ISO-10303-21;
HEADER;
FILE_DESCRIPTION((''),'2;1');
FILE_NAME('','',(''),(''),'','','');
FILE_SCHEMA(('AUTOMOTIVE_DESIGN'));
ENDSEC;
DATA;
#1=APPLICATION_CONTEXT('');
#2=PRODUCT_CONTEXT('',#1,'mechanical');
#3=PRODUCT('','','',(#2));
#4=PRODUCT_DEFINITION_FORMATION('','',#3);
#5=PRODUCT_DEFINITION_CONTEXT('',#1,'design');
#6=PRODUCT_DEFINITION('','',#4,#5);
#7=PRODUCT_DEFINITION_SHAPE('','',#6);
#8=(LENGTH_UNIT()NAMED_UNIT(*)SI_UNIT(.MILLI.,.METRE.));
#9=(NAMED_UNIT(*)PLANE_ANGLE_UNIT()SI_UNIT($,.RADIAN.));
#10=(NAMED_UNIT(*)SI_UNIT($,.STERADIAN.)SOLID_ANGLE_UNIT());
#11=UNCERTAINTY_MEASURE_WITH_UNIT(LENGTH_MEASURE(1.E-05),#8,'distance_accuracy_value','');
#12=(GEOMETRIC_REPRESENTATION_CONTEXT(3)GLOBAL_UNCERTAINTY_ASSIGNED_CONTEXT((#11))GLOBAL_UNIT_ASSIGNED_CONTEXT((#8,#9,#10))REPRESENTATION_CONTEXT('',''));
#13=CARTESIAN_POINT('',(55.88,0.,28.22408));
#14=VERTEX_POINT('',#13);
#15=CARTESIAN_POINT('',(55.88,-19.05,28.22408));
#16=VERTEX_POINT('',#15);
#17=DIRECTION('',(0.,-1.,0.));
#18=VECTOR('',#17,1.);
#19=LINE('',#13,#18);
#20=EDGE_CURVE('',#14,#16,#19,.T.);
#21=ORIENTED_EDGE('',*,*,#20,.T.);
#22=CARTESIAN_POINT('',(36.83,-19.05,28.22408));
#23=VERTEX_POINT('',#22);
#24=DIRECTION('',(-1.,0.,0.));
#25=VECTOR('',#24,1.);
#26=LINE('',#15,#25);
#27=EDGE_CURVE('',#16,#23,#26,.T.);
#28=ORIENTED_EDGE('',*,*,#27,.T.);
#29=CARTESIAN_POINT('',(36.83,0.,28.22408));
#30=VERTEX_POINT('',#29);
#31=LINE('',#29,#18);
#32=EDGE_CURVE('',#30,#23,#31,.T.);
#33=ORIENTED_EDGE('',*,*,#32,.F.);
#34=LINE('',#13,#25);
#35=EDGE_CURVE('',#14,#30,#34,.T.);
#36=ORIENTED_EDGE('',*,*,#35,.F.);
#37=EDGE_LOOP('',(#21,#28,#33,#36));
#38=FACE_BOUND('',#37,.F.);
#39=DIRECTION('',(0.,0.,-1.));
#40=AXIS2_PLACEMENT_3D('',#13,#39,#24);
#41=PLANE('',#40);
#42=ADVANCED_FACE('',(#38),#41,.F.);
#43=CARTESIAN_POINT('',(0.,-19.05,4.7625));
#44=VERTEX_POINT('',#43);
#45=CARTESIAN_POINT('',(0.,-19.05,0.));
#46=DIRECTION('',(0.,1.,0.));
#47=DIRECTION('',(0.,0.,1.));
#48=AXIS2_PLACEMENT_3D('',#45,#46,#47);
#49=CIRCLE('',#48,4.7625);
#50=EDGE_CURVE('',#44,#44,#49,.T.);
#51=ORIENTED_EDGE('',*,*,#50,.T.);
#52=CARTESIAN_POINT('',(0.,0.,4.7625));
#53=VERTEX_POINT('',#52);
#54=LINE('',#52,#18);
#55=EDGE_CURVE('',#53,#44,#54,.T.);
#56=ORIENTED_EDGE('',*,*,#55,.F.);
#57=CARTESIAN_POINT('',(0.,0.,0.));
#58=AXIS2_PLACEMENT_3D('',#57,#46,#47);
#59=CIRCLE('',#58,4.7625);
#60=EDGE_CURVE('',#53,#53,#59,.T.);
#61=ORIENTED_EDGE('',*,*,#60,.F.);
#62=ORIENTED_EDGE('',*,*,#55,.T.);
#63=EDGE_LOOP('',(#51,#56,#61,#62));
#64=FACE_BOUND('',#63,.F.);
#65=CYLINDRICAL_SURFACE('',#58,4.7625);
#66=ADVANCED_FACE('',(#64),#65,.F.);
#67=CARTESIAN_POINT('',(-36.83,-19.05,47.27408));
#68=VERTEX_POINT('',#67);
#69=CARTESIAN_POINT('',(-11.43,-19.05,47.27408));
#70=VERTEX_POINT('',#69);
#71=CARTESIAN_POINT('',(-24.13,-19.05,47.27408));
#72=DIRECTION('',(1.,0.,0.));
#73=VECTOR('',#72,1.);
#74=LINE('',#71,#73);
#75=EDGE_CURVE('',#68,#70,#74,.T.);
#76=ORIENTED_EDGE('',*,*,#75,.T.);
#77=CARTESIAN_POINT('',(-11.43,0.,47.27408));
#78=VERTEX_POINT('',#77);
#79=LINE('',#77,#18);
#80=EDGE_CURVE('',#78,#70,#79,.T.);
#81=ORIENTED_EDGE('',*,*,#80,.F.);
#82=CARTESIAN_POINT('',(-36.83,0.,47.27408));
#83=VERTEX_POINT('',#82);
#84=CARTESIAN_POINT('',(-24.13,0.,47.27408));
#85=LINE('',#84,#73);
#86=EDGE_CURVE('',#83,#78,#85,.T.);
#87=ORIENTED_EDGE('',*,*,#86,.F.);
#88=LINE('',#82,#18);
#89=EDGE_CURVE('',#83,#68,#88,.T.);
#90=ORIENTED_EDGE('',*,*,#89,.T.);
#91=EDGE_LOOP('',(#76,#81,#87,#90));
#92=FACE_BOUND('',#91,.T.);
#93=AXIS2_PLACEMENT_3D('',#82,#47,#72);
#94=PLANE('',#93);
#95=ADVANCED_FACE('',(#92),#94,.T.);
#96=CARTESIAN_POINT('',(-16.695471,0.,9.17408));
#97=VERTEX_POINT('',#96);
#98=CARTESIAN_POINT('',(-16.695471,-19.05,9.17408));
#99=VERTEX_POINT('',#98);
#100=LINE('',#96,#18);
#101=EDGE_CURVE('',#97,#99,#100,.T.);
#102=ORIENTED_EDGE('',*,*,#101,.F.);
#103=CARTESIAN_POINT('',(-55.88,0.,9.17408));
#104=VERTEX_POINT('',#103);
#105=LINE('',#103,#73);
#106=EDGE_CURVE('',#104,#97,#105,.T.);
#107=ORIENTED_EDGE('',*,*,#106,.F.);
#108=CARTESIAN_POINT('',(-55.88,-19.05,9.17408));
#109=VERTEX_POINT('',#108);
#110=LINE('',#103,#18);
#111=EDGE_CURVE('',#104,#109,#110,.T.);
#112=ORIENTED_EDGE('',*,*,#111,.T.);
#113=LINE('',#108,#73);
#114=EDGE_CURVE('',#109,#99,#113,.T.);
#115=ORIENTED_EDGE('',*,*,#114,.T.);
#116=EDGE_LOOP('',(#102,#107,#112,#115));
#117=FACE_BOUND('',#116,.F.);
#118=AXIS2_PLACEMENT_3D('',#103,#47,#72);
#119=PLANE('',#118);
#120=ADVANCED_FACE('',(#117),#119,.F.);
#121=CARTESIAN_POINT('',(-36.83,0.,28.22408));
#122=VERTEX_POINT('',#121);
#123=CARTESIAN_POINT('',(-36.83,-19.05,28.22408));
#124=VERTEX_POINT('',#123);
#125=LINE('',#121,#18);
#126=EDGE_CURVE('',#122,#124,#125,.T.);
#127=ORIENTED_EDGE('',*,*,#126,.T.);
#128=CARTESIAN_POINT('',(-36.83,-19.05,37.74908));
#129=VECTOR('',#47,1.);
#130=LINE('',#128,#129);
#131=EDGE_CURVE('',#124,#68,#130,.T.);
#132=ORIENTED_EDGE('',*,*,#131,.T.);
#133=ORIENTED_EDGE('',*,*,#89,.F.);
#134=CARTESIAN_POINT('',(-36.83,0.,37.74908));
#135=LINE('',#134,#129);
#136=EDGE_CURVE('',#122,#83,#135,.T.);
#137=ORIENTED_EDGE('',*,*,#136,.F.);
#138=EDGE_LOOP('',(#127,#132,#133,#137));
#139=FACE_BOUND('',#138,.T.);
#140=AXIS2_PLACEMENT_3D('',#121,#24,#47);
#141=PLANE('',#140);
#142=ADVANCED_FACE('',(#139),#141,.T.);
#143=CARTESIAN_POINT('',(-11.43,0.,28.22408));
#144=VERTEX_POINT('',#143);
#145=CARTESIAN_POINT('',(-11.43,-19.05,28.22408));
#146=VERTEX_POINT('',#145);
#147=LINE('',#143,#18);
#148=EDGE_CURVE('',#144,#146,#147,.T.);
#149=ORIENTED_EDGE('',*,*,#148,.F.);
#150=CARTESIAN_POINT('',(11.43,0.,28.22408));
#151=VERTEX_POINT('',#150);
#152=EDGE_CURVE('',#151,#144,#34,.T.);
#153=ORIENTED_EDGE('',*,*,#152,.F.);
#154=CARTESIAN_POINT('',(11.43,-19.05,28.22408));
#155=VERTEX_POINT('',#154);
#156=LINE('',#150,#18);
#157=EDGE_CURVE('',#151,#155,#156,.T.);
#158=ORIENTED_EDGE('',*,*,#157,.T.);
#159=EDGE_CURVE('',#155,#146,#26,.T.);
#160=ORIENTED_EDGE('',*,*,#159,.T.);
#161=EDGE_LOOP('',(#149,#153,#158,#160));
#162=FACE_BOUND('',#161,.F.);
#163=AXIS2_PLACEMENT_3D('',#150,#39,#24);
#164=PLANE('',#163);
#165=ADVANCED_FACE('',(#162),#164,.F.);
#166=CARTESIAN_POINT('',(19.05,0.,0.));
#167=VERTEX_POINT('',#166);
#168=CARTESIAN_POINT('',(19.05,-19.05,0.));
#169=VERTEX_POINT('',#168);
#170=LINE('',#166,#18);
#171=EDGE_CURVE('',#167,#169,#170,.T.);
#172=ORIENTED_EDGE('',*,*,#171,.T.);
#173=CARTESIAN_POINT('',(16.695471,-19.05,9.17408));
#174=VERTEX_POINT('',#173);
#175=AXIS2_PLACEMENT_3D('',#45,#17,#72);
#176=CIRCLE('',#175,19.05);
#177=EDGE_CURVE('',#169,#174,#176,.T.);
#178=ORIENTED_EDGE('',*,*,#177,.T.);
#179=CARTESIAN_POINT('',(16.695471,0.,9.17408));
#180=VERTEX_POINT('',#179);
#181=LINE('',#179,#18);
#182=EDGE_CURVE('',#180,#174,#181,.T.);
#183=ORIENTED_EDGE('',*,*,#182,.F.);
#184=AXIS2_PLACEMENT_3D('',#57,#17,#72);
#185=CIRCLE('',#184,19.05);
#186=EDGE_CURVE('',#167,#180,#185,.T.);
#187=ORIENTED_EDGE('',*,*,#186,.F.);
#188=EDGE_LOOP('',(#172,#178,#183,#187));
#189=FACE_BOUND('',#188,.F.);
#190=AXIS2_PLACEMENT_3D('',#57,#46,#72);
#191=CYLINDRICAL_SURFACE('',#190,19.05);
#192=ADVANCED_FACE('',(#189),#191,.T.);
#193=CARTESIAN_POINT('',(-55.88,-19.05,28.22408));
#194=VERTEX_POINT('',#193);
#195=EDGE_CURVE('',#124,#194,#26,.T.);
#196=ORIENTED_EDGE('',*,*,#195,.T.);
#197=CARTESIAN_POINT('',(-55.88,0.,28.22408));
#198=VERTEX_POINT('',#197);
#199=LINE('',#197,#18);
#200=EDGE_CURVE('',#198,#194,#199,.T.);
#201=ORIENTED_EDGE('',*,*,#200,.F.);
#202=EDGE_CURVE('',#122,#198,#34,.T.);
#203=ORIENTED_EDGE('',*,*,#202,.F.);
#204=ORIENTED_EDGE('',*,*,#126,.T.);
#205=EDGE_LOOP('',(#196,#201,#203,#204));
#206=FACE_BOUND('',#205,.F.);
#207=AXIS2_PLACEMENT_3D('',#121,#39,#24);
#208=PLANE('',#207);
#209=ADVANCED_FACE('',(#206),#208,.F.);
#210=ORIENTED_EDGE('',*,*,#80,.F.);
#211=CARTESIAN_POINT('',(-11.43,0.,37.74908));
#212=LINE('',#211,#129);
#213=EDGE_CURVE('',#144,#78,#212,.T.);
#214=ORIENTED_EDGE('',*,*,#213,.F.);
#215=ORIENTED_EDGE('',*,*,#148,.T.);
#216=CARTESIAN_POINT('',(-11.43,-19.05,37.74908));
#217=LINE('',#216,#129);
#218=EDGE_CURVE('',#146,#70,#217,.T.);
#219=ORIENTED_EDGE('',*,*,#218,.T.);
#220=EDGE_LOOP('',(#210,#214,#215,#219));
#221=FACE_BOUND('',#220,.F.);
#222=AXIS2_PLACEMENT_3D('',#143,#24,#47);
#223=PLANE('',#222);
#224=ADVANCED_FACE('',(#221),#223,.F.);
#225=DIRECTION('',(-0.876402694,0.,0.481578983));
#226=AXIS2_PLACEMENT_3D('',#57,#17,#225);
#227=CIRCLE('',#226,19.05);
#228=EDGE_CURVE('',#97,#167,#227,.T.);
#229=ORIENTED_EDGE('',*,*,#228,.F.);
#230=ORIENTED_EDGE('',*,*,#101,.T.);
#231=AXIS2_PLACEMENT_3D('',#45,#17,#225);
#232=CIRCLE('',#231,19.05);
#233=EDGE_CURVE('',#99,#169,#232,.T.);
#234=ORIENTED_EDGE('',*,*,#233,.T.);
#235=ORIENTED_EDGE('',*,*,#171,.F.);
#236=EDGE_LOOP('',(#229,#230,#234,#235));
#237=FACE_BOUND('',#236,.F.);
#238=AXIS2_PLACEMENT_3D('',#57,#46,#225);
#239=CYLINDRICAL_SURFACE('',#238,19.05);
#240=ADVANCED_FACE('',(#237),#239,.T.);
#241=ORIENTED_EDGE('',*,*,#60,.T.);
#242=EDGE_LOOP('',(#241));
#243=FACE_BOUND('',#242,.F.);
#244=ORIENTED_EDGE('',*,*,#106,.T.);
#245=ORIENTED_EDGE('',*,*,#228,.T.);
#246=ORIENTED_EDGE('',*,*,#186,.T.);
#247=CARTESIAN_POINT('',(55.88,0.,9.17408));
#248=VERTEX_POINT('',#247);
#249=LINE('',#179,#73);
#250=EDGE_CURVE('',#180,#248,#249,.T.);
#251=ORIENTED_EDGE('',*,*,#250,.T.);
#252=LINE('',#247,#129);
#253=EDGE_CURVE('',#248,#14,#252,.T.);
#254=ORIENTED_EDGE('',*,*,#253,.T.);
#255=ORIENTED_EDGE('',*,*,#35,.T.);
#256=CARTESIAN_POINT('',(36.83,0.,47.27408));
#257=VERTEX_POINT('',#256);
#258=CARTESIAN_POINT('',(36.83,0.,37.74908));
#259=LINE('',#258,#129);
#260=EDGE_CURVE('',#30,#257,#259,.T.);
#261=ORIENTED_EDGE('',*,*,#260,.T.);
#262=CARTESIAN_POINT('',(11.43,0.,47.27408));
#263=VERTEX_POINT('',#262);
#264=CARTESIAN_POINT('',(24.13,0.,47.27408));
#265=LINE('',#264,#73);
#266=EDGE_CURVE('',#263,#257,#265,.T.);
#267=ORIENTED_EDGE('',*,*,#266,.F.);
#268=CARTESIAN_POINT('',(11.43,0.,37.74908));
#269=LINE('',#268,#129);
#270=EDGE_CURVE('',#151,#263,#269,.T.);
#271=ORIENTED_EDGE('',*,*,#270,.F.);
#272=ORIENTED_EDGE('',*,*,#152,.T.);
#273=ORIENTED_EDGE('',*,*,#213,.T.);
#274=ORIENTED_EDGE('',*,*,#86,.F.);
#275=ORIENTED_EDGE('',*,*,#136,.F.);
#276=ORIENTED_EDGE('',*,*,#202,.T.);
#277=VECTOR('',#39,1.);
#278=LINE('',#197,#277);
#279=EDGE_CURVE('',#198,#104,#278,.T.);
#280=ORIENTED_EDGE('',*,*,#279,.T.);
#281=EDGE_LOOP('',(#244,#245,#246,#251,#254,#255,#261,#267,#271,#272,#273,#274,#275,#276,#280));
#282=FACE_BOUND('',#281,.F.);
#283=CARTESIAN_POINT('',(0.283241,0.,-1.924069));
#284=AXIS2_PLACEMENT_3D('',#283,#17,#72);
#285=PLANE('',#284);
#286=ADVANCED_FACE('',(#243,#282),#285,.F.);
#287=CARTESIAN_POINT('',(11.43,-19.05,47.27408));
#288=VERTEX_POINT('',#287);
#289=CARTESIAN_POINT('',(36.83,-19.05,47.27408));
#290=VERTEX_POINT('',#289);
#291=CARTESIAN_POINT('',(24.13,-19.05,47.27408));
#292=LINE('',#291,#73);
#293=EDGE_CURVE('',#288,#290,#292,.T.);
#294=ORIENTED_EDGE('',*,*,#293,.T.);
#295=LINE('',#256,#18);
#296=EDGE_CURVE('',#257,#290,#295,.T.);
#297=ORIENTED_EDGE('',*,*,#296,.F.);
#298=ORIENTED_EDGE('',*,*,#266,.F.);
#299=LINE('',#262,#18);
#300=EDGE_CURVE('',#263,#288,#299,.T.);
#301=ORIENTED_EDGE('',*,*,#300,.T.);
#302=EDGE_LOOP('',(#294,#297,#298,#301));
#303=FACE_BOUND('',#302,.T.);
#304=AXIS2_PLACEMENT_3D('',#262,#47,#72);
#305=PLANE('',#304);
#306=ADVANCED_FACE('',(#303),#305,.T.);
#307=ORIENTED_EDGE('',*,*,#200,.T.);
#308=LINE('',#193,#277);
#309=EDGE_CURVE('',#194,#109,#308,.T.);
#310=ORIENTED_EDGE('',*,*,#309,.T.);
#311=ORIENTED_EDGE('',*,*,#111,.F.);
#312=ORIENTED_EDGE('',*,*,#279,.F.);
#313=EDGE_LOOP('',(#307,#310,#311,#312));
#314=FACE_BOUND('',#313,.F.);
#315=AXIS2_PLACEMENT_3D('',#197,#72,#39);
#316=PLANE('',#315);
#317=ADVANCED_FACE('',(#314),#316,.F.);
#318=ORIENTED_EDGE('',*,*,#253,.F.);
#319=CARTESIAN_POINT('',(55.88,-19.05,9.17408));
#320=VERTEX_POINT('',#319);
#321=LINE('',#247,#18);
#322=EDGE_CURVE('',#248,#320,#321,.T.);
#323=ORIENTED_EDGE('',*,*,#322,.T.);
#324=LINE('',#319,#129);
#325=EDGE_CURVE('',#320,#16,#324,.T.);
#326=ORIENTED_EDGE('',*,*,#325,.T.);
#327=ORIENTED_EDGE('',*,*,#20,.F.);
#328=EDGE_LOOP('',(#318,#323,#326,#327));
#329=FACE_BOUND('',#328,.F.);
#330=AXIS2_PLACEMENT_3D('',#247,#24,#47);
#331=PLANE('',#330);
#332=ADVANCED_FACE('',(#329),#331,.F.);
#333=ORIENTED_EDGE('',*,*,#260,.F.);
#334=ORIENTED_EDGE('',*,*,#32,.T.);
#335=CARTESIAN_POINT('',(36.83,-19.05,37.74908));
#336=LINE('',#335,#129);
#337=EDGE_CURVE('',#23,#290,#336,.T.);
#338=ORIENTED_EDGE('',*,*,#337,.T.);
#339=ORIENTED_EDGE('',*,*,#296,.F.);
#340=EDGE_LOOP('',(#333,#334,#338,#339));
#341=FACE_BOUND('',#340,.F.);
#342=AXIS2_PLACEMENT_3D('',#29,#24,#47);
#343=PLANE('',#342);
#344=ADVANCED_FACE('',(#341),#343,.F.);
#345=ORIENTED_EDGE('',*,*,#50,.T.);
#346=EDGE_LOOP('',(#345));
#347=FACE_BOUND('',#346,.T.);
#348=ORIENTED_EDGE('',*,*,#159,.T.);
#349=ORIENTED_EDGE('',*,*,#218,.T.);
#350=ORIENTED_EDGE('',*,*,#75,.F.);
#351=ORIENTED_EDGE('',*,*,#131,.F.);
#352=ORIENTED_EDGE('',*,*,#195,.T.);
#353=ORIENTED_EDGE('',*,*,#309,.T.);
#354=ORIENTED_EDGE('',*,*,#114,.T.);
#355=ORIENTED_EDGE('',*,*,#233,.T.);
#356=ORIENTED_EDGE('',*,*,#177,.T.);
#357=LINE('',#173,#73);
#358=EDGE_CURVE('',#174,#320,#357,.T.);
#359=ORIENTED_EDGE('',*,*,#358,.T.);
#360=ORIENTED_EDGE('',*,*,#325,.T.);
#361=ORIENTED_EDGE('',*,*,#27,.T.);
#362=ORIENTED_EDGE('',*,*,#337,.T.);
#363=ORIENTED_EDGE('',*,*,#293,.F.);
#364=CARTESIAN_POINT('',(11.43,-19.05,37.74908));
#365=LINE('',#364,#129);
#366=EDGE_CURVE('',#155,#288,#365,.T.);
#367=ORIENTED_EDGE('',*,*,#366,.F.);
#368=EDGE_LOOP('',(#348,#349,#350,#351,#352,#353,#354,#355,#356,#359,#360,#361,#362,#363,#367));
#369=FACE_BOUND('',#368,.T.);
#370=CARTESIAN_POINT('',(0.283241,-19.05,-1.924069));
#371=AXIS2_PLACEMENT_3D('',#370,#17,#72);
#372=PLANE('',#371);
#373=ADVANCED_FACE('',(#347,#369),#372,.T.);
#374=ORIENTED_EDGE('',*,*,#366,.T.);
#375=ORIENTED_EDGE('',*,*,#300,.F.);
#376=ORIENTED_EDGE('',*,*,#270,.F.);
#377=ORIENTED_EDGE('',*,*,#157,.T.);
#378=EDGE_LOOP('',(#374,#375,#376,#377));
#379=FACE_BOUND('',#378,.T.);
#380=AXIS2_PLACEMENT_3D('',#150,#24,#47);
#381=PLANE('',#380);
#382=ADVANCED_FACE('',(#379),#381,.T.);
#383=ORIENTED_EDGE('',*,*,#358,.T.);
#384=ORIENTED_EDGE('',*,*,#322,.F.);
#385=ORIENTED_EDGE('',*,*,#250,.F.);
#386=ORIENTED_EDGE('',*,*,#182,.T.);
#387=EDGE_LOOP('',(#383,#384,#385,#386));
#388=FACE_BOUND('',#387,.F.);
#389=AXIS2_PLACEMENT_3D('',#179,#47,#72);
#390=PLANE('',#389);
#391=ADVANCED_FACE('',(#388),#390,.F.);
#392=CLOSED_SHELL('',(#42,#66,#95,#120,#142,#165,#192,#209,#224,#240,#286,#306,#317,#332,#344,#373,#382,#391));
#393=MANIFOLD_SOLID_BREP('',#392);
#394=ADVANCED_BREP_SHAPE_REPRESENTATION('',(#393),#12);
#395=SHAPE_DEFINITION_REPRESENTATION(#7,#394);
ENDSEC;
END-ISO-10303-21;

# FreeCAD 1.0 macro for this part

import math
import FreeCAD as App
import Part
import Sketcher

V = App.Vector
Q = App.Units.Quantity

doc = App.newDocument("Part")
body = doc.addObject("PartDesign::Body", "Body")

# Sketch on XZ plane
sketch1 = body.newObject("Sketcher::SketchObject", "Sketch")
sketch1.AttachmentSupport = (doc.getObject("XZ_Plane"), [""])
sketch1.MapMode = "FlatFace"
sketch1.addGeometry(Part.LineSegment(V(-55.9, 9.2, 0), V(-16.7, 9.2, 0)), False)
sketch1.addGeometry(Part.ArcOfCircle(Part.Circle(V(0, 0, 0), V(0, 0, 1), 19.1), math.radians(151), math.radians(360)), False)
sketch1.addGeometry(Part.ArcOfCircle(Part.Circle(V(0, 0, 0), V(0, 0, 1), 19), math.radians(0), math.radians(29)), False)
sketch1.addGeometry(Part.LineSegment(V(16.7, 9.2, 0), V(55.9, 9.2, 0)), False)
sketch1.addGeometry(Part.LineSegment(V(55.9, 9.2, 0), V(55.9, 28.2, 0)), False)
sketch1.addGeometry(Part.LineSegment(V(55.9, 28.2, 0), V(36.8, 28.2, 0)), False)
sketch1.addGeometry(Part.LineSegment(V(36.8, 28.2, 0), V(36.8, 47.3, 0)), False)
sketch1.addGeometry(Part.LineSegment(V(36.8, 47.3, 0), V(11.4, 47.3, 0)), False)
sketch1.addGeometry(Part.LineSegment(V(11.4, 47.3, 0), V(11.4, 28.2, 0)), False)
sketch1.addGeometry(Part.LineSegment(V(11.4, 28.2, 0), V(-11.4, 28.2, 0)), False)
sketch1.addGeometry(Part.LineSegment(V(-11.4, 28.2, 0), V(-11.4, 47.3, 0)), False)
sketch1.addGeometry(Part.LineSegment(V(-11.4, 47.3, 0), V(-36.8, 47.3, 0)), False)
sketch1.addGeometry(Part.LineSegment(V(-36.8, 47.3, 0), V(-36.8, 28.2, 0)), False)
sketch1.addGeometry(Part.LineSegment(V(-36.8, 28.2, 0), V(-55.9, 28.2, 0)), False)
sketch1.addGeometry(Part.LineSegment(V(-55.9, 28.2, 0), V(-55.9, 9.2, 0)), False)
sketch1.addGeometry(Part.Circle(V(0, 0, 0), V(0, 0, 1), 4.8), False)
sketch1.addConstraint(Sketcher.Constraint("Coincident", 0, 2, 1, 1))
sketch1.addConstraint(Sketcher.Constraint("Tangent", 1, 2, 2, 1))
sketch1.addConstraint(Sketcher.Constraint("Coincident", 2, 2, 3, 1))
sketch1.addConstraint(Sketcher.Constraint("Coincident", 3, 2, 4, 1))
sketch1.addConstraint(Sketcher.Constraint("Coincident", 4, 2, 5, 1))
sketch1.addConstraint(Sketcher.Constraint("Coincident", 5, 2, 6, 1))
sketch1.addConstraint(Sketcher.Constraint("Coincident", 6, 2, 7, 1))
sketch1.addConstraint(Sketcher.Constraint("Coincident", 7, 2, 8, 1))
sketch1.addConstraint(Sketcher.Constraint("Coincident", 8, 2, 9, 1))
sketch1.addConstraint(Sketcher.Constraint("Coincident", 9, 2, 10, 1))
sketch1.addConstraint(Sketcher.Constraint("Coincident", 10, 2, 11, 1))
sketch1.addConstraint(Sketcher.Constraint("Coincident", 11, 2, 12, 1))
sketch1.addConstraint(Sketcher.Constraint("Coincident", 12, 2, 13, 1))
sketch1.addConstraint(Sketcher.Constraint("Coincident", 13, 2, 14, 1))
sketch1.addConstraint(Sketcher.Constraint("Coincident", 14, 2, 0, 1))
sketch1.addConstraint(Sketcher.Constraint("Horizontal", 0))
sketch1.addConstraint(Sketcher.Constraint("Horizontal", 3))
sketch1.addConstraint(Sketcher.Constraint("Vertical", 4))
sketch1.addConstraint(Sketcher.Constraint("Horizontal", 5))
sketch1.addConstraint(Sketcher.Constraint("Vertical", 6))
sketch1.addConstraint(Sketcher.Constraint("Horizontal", 7))
sketch1.addConstraint(Sketcher.Constraint("Vertical", 8))
sketch1.addConstraint(Sketcher.Constraint("Horizontal", 9))
sketch1.addConstraint(Sketcher.Constraint("Vertical", 10))
sketch1.addConstraint(Sketcher.Constraint("Horizontal", 11))
sketch1.addConstraint(Sketcher.Constraint("Vertical", 12))
sketch1.addConstraint(Sketcher.Constraint("Horizontal", 13))
sketch1.addConstraint(Sketcher.Constraint("Vertical", 14))
sketch1.addConstraint(Sketcher.Constraint("Coincident", 1, 3, -1, 1))
sketch1.addConstraint(Sketcher.Constraint("Coincident", 15, 3, -1, 1))
sketch1.addConstraint(Sketcher.Constraint("Equal", 1, 2))
sketch1.addConstraint(Sketcher.Constraint("Symmetric", 7, 2, 10, 2, -2))
sketch1.addConstraint(Sketcher.Constraint("Symmetric", 5, 2, 12, 2, -2))
sketch1.addConstraint(Sketcher.Constraint("Symmetric", 3, 2, 14, 2, -2))
sketch1.addConstraint(Sketcher.Constraint("PointOnObject", 1, 2, -1))
sketch1.addConstraint(Sketcher.Constraint("Horizontal", 5, 2, 8, 2))
sketch1.addConstraint(Sketcher.Constraint("Equal", 13, 4))
sketch1.addConstraint(Sketcher.Constraint("Equal", 4, 6))
sketch1.addConstraint(Sketcher.Constraint("DistanceX", 7, 2, 7, 1, Q("1 in")))
sketch1.addConstraint(Sketcher.Constraint("Radius", 1, Q("0.75 in")))
sketch1.addConstraint(Sketcher.Constraint("Diameter", 15, Q("0.375 in")))
sketch1.addConstraint(Sketcher.Constraint("DistanceX", 9, 2, 9, 1, Q("0.9 in")))
sketch1.addConstraint(Sketcher.Constraint("DistanceX", 5, 2, 5, 1, Q("0.75 in")))
sketch1.addConstraint(Sketcher.Constraint("DistanceX", 0, 1, 0, 2, 39.184529))
pad1 = body.newObject("PartDesign::Pad", "Pad")
pad1.Profile = sketch1
pad1.Length = Q("0.75 in")

doc.recompute()
